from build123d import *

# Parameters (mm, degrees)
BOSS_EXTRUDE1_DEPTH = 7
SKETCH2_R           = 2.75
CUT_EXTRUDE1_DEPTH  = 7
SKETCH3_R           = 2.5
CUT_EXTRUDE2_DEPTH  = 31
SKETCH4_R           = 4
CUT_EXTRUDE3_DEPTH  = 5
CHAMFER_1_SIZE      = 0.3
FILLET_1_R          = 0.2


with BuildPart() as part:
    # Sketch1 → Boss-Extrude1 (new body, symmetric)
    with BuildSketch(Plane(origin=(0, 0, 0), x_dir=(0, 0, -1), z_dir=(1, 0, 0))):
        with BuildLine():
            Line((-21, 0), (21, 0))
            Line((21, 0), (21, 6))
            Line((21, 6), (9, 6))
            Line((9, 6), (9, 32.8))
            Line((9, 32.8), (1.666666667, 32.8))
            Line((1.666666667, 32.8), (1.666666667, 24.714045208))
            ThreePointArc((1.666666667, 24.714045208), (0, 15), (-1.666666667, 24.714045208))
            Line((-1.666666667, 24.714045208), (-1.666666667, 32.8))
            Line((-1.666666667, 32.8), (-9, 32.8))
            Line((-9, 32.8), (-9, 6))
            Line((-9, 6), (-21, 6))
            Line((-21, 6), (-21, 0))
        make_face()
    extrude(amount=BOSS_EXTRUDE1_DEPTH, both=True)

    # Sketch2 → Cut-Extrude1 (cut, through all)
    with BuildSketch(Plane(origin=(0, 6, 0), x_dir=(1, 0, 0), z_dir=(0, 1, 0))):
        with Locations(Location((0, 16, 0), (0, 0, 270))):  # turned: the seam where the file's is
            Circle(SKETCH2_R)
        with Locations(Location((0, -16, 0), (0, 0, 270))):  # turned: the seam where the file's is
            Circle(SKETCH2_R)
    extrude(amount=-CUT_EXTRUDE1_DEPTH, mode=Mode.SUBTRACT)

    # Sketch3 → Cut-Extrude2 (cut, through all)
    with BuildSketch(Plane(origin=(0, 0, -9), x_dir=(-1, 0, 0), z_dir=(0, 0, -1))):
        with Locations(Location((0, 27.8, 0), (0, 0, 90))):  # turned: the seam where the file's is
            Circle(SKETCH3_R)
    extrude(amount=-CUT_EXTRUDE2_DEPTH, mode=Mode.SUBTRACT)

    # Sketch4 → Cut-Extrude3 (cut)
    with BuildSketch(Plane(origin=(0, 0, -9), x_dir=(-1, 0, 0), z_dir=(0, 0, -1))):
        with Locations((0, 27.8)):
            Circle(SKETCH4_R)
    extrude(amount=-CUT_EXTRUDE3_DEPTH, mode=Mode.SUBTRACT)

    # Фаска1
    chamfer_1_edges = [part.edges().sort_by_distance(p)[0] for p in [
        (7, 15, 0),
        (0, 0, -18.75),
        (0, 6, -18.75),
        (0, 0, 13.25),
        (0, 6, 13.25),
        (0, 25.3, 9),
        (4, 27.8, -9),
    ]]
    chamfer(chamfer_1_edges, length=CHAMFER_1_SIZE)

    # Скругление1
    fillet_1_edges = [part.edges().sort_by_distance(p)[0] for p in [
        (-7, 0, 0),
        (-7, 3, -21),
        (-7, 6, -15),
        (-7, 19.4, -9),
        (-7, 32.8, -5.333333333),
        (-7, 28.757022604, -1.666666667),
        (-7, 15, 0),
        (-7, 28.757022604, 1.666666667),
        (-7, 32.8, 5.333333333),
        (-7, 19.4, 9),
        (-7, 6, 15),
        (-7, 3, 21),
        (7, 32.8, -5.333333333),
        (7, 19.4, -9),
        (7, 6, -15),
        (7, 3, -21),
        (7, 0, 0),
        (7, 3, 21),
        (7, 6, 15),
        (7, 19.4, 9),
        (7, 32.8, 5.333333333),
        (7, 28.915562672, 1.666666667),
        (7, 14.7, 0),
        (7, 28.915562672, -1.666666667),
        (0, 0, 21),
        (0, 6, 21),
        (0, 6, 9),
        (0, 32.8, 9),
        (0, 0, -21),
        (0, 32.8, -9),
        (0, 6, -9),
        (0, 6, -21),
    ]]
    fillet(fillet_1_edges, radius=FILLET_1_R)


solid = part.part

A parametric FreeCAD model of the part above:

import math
import FreeCAD as App
import Part
import Sketcher
from FreeCAD import Vector
Q = App.Units.Quantity


def edges_at(feature, points):
    """Names of the edges that pass closest to the given points."""
    edges = feature.Shape.Edges
    near = lambda p: min(range(len(edges)), key=lambda i: edges[i].distToShape(Part.Vertex(*p))[0])
    return sorted({f"Edge{near(p) + 1}" for p in points})

doc = App.newDocument("Part")
body = doc.addObject("PartDesign::Body", "Body")

sketch1 = body.newObject("Sketcher::SketchObject", "Sketch")
sketch1.AttachmentSupport = (doc.getObject("YZ_Plane"), [""])
sketch1.MapMode = "FlatFace"
sketch1.addGeometry(Part.LineSegment(Vector(0, 21, 0), Vector(0, -21, 0)), False)
sketch1.addGeometry(Part.LineSegment(Vector(0, -21, 0), Vector(6, -21, 0)), False)
sketch1.addGeometry(Part.LineSegment(Vector(6, -21, 0), Vector(6, -9, 0)), False)
sketch1.addGeometry(Part.LineSegment(Vector(6, -9, 0), Vector(32.8, -9, 0)), False)
sketch1.addGeometry(Part.LineSegment(Vector(32.8, -9, 0), Vector(32.8, -1.7, 0)), False)
sketch1.addGeometry(Part.LineSegment(Vector(32.8, -1.7, 0), Vector(24.7, -1.7, 0)), False)
sketch1.addGeometry(Part.ArcOfCircle(Part.Circle(Vector(20, 0, 0), Vector(0, 0, 1), 5), math.radians(19), math.radians(341)), False)
sketch1.addGeometry(Part.LineSegment(Vector(24.7, 1.7, 0), Vector(32.8, 1.7, 0)), False)
sketch1.addGeometry(Part.LineSegment(Vector(32.8, 1.7, 0), Vector(32.8, 9, 0)), False)
sketch1.addGeometry(Part.LineSegment(Vector(32.8, 9, 0), Vector(6, 9, 0)), False)
sketch1.addGeometry(Part.LineSegment(Vector(6, 9, 0), Vector(6, 21, 0)), False)
sketch1.addGeometry(Part.LineSegment(Vector(6, 21, 0), Vector(0, 21, 0)), False)
sketch1.addConstraint(Sketcher.Constraint("Coincident", 0, 2, 1, 1))
sketch1.addConstraint(Sketcher.Constraint("Coincident", 1, 2, 2, 1))
sketch1.addConstraint(Sketcher.Constraint("Coincident", 2, 2, 3, 1))
sketch1.addConstraint(Sketcher.Constraint("Coincident", 3, 2, 4, 1))
sketch1.addConstraint(Sketcher.Constraint("Coincident", 4, 2, 5, 1))
sketch1.addConstraint(Sketcher.Constraint("Coincident", 5, 2, 6, 2))
sketch1.addConstraint(Sketcher.Constraint("Coincident", 6, 1, 7, 1))
sketch1.addConstraint(Sketcher.Constraint("Coincident", 7, 2, 8, 1))
sketch1.addConstraint(Sketcher.Constraint("Coincident", 8, 2, 9, 1))
sketch1.addConstraint(Sketcher.Constraint("Coincident", 9, 2, 10, 1))
sketch1.addConstraint(Sketcher.Constraint("Coincident", 10, 2, 11, 1))
sketch1.addConstraint(Sketcher.Constraint("Coincident", 11, 2, 0, 1))
sketch1.addConstraint(Sketcher.Constraint("Vertical", 0))
sketch1.addConstraint(Sketcher.Constraint("Horizontal", 1))
sketch1.addConstraint(Sketcher.Constraint("Vertical", 2))
sketch1.addConstraint(Sketcher.Constraint("Horizontal", 3))
sketch1.addConstraint(Sketcher.Constraint("Vertical", 4))
sketch1.addConstraint(Sketcher.Constraint("Horizontal", 5))
sketch1.addConstraint(Sketcher.Constraint("Horizontal", 7))
sketch1.addConstraint(Sketcher.Constraint("Vertical", 8))
sketch1.addConstraint(Sketcher.Constraint("Horizontal", 9))
sketch1.addConstraint(Sketcher.Constraint("Vertical", 10))
sketch1.addConstraint(Sketcher.Constraint("Horizontal", 11))
sketch1.addConstraint(Sketcher.Constraint("Symmetric", 0, 2, 11, 2, -1, 1))
sketch1.addConstraint(Sketcher.Constraint("Symmetric", 5, 2, 6, 1, -1))
sketch1.addConstraint(Sketcher.Constraint("Symmetric", 3, 2, 8, 2, -1))
sketch1.addConstraint(Sketcher.Constraint("Vertical", 2, 2, 9, 2))
sketch1.addConstraint(Sketcher.Constraint("Radius", 6, Q("5 mm")))
sketch1.addConstraint(Sketcher.Constraint("DistanceX", 1, 1, 1, 2, Q("6 mm")))
sketch1.addConstraint(Sketcher.Constraint("DistanceY", 0, 2, 0, 1, Q("42 mm")))
sketch1.addConstraint(Sketcher.Constraint("DistanceY", 2, 1, 2, 2, Q("12 mm")))
sketch1.addConstraint(Sketcher.Constraint("DistanceX", 3, 1, 3, 2, Q("26.8 mm")))
sketch1.addConstraint(Sketcher.Constraint("DistanceX", -1, 1, 6, 3, Q("20 mm")))
sketch1.addConstraint(Sketcher.Constraint("DistanceX", 5, 2, 5, 1, Q("8.085955 mm")))
pad1 = body.newObject("PartDesign::Pad", "Pad")
pad1.Profile = sketch1
pad1.Length = 14
pad1.Midplane = True

sketch2 = body.newObject("Sketcher::SketchObject", "Sketch001")
sketch2.AttachmentSupport = (doc.getObject("XZ_Plane"), [""])
sketch2.MapMode = "FlatFace"
sketch2.AttachmentOffset = App.Placement(Vector(0, 0, -6), App.Rotation())
sketch2.addGeometry(Part.Circle(Vector(0, -16, 0), Vector(0, 0, 1), 2.8), False)
sketch2.addGeometry(Part.Circle(Vector(0, 16, 0), Vector(0, 0, 1), 2.8), False)
sketch2.addConstraint(Sketcher.Constraint("Equal", 0, 1))
sketch2.addConstraint(Sketcher.Constraint("Symmetric", 0, 3, 1, 3, -1, 1))
sketch2.addConstraint(Sketcher.Constraint("PointOnObject", 0, 3, -2))
sketch2.addConstraint(Sketcher.Constraint("Diameter", 0, Q("5.5 mm")))
sketch2.addConstraint(Sketcher.Constraint("DistanceY", 0, 3, -1, 1, Q("16 mm")))
pocket1 = body.newObject("PartDesign::Pocket", "Pocket")
pocket1.Profile = sketch2
pocket1.Type = "ThroughAll"
pocket1.Reversed = True

sketch3 = body.newObject("Sketcher::SketchObject", "Sketch002")
sketch3.AttachmentSupport = (doc.getObject("XY_Plane"), [""])
sketch3.MapMode = "FlatFace"
sketch3.AttachmentOffset = App.Placement(Vector(0, 0, -9), App.Rotation())
sketch3.addGeometry(Part.Circle(Vector(0, 27.8, 0), Vector(0, 0, 1), 2.5), False)
sketch3.addConstraint(Sketcher.Constraint("PointOnObject", 0, 3, -2))
sketch3.addConstraint(Sketcher.Constraint("Diameter", 0, Q("5 mm")))
sketch3.addConstraint(Sketcher.Constraint("DistanceY", -1, 1, 0, 3, Q("27.8 mm")))
pocket2 = body.newObject("PartDesign::Pocket", "Pocket001")
pocket2.Profile = sketch3
pocket2.Type = "ThroughAll"
pocket2.Reversed = True

sketch4 = body.newObject("Sketcher::SketchObject", "Sketch003")
sketch4.AttachmentSupport = (doc.getObject("XY_Plane"), [""])
sketch4.MapMode = "FlatFace"
sketch4.AttachmentOffset = App.Placement(Vector(0, 0, -9), App.Rotation())
sketch4.addGeometry(Part.Circle(Vector(0, 27.8, 0), Vector(0, 0, 1), 4), False)
sketch4.addConstraint(Sketcher.Constraint("PointOnObject", 0, 3, -2))
sketch4.addConstraint(Sketcher.Constraint("Diameter", 0, Q("8 mm")))
sketch4.addConstraint(Sketcher.Constraint("DistanceY", -1, 1, 0, 3, Q("27.8 mm")))
pocket3 = body.newObject("PartDesign::Pocket", "Pocket002")
pocket3.Profile = sketch4
pocket3.Length = 5
pocket3.Reversed = True
doc.recompute()

chamfer = body.newObject("PartDesign::Chamfer", "Chamfer")
chamfer.Base = (pocket3, edges_at(pocket3, [
    (7, 15, 0),
    (0, 0, -18.75),
    (0, 6, -18.75),
    (0, 0, 13.25),
    (0, 6, 13.25),
    (0, 25.3, 9),
    (4, 27.8, -9),
]))
chamfer.Size = 0.3
doc.recompute()

fillet = body.newObject("PartDesign::Fillet", "Fillet")
fillet.Base = (chamfer, edges_at(chamfer, [
    (-7, 0, 0),
    (-7, 3, -21),
    (-7, 6, -15),
    (-7, 19.4, -9),
    (-7, 32.8, -5.333),
    (-7, 28.757, -1.667),
    (-7, 15, 0),
    (-7, 28.757, 1.667),
    (-7, 32.8, 5.333),
    (-7, 19.4, 9),
    (-7, 6, 15),
    (-7, 3, 21),
    (7, 32.8, -5.333),
    (7, 19.4, -9),
    (7, 6, -15),
    (7, 3, -21),
    (7, 0, 0),
    (7, 3, 21),
    (7, 6, 15),
    (7, 19.4, 9),
    (7, 32.8, 5.333),
    (7, 28.916, 1.667),
    (7, 14.7, 0),
    (7, 28.916, -1.667),
    (0, 0, 21),
    (0, 6, 21),
    (0, 6, 9),
    (0, 32.8, 9),
    (0, 0, -21),
    (0, 32.8, -9),
    (0, 6, -9),
    (0, 6, -21),
]))
fillet.Radius = 0.2

doc.recompute()
